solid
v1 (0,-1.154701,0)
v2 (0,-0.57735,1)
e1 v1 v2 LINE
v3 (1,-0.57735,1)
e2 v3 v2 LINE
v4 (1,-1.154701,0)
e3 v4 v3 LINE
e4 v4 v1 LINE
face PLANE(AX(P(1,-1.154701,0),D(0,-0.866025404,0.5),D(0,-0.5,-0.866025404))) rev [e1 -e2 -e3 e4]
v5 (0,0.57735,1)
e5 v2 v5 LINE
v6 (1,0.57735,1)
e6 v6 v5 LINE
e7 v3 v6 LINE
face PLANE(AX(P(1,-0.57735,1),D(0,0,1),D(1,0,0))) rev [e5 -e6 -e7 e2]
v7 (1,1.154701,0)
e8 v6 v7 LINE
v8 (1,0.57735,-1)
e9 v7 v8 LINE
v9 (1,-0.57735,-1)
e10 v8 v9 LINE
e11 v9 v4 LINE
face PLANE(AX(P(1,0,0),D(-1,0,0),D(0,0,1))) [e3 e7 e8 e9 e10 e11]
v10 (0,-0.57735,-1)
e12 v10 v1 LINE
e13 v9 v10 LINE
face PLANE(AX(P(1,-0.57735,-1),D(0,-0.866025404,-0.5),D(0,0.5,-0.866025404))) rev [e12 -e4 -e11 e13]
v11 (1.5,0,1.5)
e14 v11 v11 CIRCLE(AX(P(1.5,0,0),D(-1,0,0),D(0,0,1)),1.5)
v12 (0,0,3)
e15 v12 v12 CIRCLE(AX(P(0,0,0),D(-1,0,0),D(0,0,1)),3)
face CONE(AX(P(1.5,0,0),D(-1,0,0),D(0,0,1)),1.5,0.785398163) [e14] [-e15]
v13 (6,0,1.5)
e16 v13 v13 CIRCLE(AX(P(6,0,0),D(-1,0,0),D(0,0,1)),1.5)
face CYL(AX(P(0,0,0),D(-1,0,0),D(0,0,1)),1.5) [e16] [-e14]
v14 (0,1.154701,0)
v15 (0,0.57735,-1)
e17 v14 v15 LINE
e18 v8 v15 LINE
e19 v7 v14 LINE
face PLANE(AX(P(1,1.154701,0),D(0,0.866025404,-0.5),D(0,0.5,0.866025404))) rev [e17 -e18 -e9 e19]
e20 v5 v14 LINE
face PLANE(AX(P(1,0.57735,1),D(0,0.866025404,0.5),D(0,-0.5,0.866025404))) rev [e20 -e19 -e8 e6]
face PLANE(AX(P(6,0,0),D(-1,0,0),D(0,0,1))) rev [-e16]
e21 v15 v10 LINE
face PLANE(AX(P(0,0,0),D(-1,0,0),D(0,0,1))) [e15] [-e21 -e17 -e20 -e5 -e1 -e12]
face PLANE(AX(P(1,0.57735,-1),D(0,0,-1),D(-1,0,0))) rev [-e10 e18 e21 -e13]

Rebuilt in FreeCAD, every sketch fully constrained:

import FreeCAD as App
import Part
import Sketcher
from FreeCAD import Vector
Q = App.Units.Quantity

doc = App.newDocument("Part")
body = doc.addObject("PartDesign::Body", "Body")

# Sketch on XY plane
sketch1 = body.newObject("Sketcher::SketchObject", "Sketch")
sketch1.AttachmentSupport = (doc.getObject("XY_Plane"), [""])
sketch1.MapMode = "FlatFace"
sketch1.addGeometry(Part.LineSegment(Vector(0, 3, 0), Vector(0, 0, 0)), False)
sketch1.addGeometry(Part.LineSegment(Vector(0, 0, 0), Vector(6, 0, 0)), False)
sketch1.addGeometry(Part.LineSegment(Vector(6, 0, 0), Vector(6, 1.5, 0)), False)
sketch1.addGeometry(Part.LineSegment(Vector(6, 1.5, 0), Vector(1.5, 1.5, 0)), False)
sketch1.addGeometry(Part.LineSegment(Vector(1.5, 1.5, 0), Vector(0, 3, 0)), False)
sketch1.addConstraint(Sketcher.Constraint("Coincident", 0, 2, 1, 1))
sketch1.addConstraint(Sketcher.Constraint("Coincident", 1, 2, 2, 1))
sketch1.addConstraint(Sketcher.Constraint("Coincident", 2, 2, 3, 1))
sketch1.addConstraint(Sketcher.Constraint("Coincident", 3, 2, 4, 1))
sketch1.addConstraint(Sketcher.Constraint("Coincident", 4, 2, 0, 1))
sketch1.addConstraint(Sketcher.Constraint("Vertical", 0))
sketch1.addConstraint(Sketcher.Constraint("Horizontal", 1))
sketch1.addConstraint(Sketcher.Constraint("Vertical", 2))
sketch1.addConstraint(Sketcher.Constraint("Horizontal", 3))
sketch1.addConstraint(Sketcher.Constraint("Coincident", 0, 2, -1, 1))
sketch1.addConstraint(Sketcher.Constraint("DistanceX", 1, 1, 1, 2, Q("6 mm")))
sketch1.addConstraint(Sketcher.Constraint("DistanceY", 0, 2, 0, 1, Q("3 mm")))
sketch1.addConstraint(Sketcher.Constraint("Angle", 4, Q("135 deg")))
sketch1.addConstraint(Sketcher.Constraint("DistanceX", 3, 2, 3, 1, Q("4.5 mm")))
revolution = body.newObject("PartDesign::Revolution", "Revolution")
revolution.Profile = sketch1
revolution.ReferenceAxis = (sketch1, ["H_Axis"])
revolution.Angle = 360

# Sketch on YZ plane
sketch2 = body.newObject("Sketcher::SketchObject", "Sketch001")
sketch2.AttachmentSupport = (doc.getObject("YZ_Plane"), [""])
sketch2.MapMode = "FlatFace"
sketch2.addGeometry(Part.LineSegment(Vector(1.2, 0, 0), Vector(0.6, -1, 0)), False)
sketch2.addGeometry(Part.LineSegment(Vector(0.6, -1, 0), Vector(-0.6, -1, 0)), False)
sketch2.addGeometry(Part.LineSegment(Vector(-0.6, -1, 0), Vector(-1.2, 0, 0)), False)
sketch2.addGeometry(Part.LineSegment(Vector(-1.2, 0, 0), Vector(-0.6, 1, 0)), False)
sketch2.addGeometry(Part.LineSegment(Vector(-0.6, 1, 0), Vector(0.6, 1, 0)), False)
sketch2.addGeometry(Part.LineSegment(Vector(0.6, 1, 0), Vector(1.2, 0, 0)), False)
sketch2.addConstraint(Sketcher.Constraint("Coincident", 0, 2, 1, 1))
sketch2.addConstraint(Sketcher.Constraint("Coincident", 1, 2, 2, 1))
sketch2.addConstraint(Sketcher.Constraint("Coincident", 2, 2, 3, 1))
sketch2.addConstraint(Sketcher.Constraint("Coincident", 3, 2, 4, 1))
sketch2.addConstraint(Sketcher.Constraint("Coincident", 4, 2, 5, 1))
sketch2.addConstraint(Sketcher.Constraint("Coincident", 5, 2, 0, 1))
sketch2.addConstraint(Sketcher.Constraint("Horizontal", 1))
sketch2.addConstraint(Sketcher.Constraint("Horizontal", 4))
sketch2.addConstraint(Sketcher.Constraint("Symmetric", 0, 2, 3, 2, -1, 1))
sketch2.addConstraint(Sketcher.Constraint("Symmetric", 2, 2, 5, 2, -1, 1))
sketch2.addConstraint(Sketcher.Constraint("PointOnObject", 2, 2, -1))
sketch2.addConstraint(Sketcher.Constraint("Parallel", 2, 5))
sketch2.addConstraint(Sketcher.Constraint("Vertical", 1, 2, 3, 2))
sketch2.addConstraint(Sketcher.Constraint("Angle", 0, Q("-120 deg")))
sketch2.addConstraint(Sketcher.Constraint("DistanceY", 0, 2, -1, 1, Q("1 mm")))
sketch2.addConstraint(Sketcher.Constraint("DistanceX", 1, 2, 1, 1, Q("1.154701 mm")))
pocket1 = body.newObject("PartDesign::Pocket", "Pocket")
pocket1.Profile = sketch2
pocket1.Length = 1
pocket1.Reversed = True

doc.recompute()
